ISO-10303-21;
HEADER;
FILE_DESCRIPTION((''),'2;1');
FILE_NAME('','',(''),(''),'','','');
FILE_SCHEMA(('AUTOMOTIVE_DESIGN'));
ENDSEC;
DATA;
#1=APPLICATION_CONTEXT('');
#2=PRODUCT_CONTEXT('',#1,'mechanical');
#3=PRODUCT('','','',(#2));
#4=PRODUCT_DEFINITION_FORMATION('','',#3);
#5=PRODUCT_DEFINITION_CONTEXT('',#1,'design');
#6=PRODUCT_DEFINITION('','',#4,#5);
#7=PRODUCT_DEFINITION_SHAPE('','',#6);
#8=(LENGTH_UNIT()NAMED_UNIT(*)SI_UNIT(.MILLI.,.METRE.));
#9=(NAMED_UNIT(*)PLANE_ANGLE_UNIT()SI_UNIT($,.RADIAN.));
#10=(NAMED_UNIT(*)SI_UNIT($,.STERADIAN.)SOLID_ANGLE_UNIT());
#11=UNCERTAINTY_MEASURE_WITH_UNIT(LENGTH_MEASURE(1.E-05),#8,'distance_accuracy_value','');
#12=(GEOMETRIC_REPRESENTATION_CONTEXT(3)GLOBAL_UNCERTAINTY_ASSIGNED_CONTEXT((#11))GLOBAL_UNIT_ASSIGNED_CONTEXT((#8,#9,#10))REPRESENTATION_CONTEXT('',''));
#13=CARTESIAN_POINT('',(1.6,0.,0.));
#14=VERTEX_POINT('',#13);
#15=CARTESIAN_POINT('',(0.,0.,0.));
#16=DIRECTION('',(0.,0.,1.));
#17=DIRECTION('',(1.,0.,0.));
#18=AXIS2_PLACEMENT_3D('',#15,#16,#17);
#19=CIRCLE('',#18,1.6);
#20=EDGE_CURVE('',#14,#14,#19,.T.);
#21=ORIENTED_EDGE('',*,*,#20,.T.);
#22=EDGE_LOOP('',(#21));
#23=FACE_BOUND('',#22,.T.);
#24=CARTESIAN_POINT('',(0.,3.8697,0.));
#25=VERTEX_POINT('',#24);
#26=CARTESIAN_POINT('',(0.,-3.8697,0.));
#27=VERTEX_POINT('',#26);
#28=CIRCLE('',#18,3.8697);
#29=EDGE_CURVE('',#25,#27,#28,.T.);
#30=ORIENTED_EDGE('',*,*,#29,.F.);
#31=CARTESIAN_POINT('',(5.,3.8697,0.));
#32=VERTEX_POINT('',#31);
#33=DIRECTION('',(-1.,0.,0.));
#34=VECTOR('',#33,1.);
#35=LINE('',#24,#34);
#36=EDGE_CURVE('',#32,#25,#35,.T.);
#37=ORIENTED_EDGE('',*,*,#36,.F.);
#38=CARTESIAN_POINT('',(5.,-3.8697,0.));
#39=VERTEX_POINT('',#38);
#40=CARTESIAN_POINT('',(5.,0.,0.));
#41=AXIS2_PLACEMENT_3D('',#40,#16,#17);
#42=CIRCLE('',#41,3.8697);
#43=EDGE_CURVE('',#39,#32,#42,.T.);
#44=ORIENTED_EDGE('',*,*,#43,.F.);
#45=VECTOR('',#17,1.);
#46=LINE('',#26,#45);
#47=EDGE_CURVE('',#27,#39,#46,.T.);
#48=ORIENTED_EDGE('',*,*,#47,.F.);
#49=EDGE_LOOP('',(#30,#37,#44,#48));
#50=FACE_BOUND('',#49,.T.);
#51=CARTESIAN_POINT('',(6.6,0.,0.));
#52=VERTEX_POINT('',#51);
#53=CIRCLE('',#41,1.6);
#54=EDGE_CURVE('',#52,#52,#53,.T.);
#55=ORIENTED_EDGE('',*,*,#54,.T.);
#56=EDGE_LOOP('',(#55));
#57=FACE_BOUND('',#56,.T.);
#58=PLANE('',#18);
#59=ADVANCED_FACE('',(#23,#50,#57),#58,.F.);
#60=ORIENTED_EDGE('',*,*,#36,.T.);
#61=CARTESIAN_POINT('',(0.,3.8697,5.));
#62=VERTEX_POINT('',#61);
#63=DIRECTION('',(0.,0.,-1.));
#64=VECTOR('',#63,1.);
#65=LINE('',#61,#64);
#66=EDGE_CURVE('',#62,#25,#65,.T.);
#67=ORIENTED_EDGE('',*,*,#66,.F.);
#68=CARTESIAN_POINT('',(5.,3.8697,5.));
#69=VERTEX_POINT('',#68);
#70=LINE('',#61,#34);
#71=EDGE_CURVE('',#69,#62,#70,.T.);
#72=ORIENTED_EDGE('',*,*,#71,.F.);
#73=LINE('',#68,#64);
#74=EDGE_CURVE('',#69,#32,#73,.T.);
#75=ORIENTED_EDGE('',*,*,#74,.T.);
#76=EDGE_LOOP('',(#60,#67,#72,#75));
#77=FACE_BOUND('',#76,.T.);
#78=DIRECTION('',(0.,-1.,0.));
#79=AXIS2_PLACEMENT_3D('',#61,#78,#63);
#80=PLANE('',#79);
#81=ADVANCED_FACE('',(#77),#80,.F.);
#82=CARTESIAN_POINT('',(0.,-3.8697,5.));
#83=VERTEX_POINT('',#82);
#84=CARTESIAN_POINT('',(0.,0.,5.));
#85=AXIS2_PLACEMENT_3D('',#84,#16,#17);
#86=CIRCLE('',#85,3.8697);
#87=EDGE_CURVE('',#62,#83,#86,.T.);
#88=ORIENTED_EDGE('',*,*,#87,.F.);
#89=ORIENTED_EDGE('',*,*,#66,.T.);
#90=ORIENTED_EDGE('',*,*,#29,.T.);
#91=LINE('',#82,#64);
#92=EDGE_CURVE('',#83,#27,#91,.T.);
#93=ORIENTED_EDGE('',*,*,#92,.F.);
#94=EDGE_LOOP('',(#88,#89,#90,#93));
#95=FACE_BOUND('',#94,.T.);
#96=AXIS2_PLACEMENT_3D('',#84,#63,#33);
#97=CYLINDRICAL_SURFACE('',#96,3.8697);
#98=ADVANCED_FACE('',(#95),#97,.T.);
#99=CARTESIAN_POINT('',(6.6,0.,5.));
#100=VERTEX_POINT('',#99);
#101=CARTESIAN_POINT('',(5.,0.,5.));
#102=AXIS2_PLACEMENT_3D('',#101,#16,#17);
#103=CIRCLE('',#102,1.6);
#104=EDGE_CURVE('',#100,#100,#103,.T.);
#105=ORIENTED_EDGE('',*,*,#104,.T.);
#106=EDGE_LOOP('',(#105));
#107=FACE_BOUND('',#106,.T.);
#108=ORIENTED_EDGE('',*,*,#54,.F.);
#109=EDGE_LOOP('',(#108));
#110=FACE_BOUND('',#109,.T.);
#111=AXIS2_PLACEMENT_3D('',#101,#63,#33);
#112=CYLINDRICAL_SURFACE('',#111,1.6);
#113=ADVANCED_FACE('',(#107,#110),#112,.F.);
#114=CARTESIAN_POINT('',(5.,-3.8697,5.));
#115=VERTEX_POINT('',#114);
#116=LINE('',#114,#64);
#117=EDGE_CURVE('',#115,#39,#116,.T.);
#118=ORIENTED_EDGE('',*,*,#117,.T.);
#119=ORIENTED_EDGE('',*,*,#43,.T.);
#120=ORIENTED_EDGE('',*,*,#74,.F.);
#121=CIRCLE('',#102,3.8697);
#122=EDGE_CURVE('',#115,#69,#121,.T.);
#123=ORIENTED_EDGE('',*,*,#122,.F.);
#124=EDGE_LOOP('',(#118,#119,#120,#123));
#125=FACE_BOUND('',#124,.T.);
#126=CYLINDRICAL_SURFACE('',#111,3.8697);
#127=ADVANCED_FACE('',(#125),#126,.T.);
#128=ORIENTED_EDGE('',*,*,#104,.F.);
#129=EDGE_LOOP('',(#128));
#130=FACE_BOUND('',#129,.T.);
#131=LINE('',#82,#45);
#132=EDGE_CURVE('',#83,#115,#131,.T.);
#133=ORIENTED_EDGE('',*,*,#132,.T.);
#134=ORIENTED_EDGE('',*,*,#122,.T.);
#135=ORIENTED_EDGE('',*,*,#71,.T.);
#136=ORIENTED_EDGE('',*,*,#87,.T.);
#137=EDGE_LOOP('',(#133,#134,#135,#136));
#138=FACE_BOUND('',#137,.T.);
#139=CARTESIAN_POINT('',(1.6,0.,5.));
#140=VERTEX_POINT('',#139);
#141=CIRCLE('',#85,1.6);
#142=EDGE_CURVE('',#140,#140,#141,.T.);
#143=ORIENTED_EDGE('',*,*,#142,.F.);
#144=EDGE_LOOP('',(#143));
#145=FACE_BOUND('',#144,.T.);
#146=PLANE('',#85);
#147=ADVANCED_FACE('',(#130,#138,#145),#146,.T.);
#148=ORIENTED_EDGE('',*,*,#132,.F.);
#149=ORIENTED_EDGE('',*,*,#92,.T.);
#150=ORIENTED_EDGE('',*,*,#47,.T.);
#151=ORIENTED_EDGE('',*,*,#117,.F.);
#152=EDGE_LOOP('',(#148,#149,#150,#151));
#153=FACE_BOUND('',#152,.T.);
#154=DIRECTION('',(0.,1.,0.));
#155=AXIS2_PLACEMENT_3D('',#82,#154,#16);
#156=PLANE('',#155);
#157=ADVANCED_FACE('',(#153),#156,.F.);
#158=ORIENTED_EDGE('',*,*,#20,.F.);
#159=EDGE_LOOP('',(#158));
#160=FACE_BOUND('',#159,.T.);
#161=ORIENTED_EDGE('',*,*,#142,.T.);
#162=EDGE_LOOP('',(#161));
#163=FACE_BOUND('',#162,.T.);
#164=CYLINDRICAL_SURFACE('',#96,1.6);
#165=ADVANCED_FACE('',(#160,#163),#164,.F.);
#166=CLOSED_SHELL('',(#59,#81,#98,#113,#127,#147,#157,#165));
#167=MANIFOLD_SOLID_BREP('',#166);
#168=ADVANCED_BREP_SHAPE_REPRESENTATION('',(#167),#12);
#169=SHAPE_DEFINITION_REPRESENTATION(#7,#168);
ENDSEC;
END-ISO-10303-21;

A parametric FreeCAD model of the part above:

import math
import FreeCAD as App
import Part
import Sketcher

doc = App.newDocument("Part")
body = doc.addObject("PartDesign::Body", "Body")

# Sketch on XY plane
sketch1 = body.newObject("Sketcher::SketchObject", "Sketch")
sketch1.AttachmentSupport = (doc.getObject("XY_Plane"), [""])
sketch1.MapMode = "FlatFace"
sketch1.addGeometry([
    Part.LineSegment(App.Vector(5, 3.9, 0), App.Vector(0, 3.9, 0)),  # 0
    Part.ArcOfCircle(Part.Circle(App.Vector(0, 0, 0), App.Vector(0, 0, 1), 3.9), math.radians(90), math.radians(270)),  # 1
    Part.LineSegment(App.Vector(0, -3.9, 0), App.Vector(5, -3.9, 0)),  # 2
    Part.ArcOfCircle(Part.Circle(App.Vector(5, 0, 0), App.Vector(0, 0, 1), 3.9), math.radians(-90), math.radians(90)),  # 3
    Part.Circle(App.Vector(5, 0, 0), App.Vector(0, 0, 1), 1.6),  # 4
    Part.Circle(App.Vector(0, 0, 0), App.Vector(0, 0, 1), 1.6),  # 5
], False)
sketch1.addConstraint([
    Sketcher.Constraint("Tangent", 0, 2, 1, 1),
    Sketcher.Constraint("Tangent", 1, 2, 2, 1),
    Sketcher.Constraint("Tangent", 2, 2, 3, 1),
    Sketcher.Constraint("Tangent", 3, 2, 0, 1),
    Sketcher.Constraint("Horizontal", 0),
    Sketcher.Constraint("Horizontal", 2),
    Sketcher.Constraint("Coincident", 1, 3, -1, 1),
    Sketcher.Constraint("Coincident", 5, 3, -1, 1),
    Sketcher.Constraint("Coincident", 4, 3, 3, 3),
    Sketcher.Constraint("Equal", 4, 5),
    Sketcher.Constraint("Diameter", 4, 3.2),
    Sketcher.Constraint("DistanceX", 0, 2, 0, 1, 5.0),
    Sketcher.Constraint("Radius", 1, 3.8697),
])
pad1 = body.newObject("PartDesign::Pad", "Pad")
pad1.Profile = sketch1
pad1.Length = 5

doc.recompute()
